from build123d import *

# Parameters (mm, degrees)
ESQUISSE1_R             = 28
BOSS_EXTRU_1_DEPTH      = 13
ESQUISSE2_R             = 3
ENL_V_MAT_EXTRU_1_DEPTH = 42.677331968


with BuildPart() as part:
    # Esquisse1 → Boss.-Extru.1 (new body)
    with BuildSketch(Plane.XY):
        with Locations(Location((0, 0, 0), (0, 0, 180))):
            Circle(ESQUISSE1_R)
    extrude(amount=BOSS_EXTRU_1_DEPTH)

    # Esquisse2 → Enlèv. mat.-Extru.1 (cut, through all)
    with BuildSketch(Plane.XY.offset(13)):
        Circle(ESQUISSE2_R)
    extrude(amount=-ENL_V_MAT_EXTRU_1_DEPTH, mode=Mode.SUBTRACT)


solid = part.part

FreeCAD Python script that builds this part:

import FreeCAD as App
import Part
import Sketcher
Q = App.Units.Quantity

doc = App.newDocument("Part")
body = doc.addObject("PartDesign::Body", "Body")

# Sketch on XY plane
sketch1 = body.newObject("Sketcher::SketchObject", "Sketch")
sketch1.AttachmentSupport = (doc.getObject("XY_Plane"), [""])
sketch1.MapMode = "FlatFace"
sketch1.addGeometry(Part.Circle(App.Vector(0, 0, 0), App.Vector(0, 0, 1), 28), False)
sketch1.addConstraint([
    Sketcher.Constraint("Coincident", 0, 3, -1, 1),
    Sketcher.Constraint("Diameter", 0, Q("56 mm")),
])
pad1 = body.newObject("PartDesign::Pad", "Pad")
pad1.Profile = sketch1
pad1.Length = 13

# Sketch on XY plane
sketch2 = body.newObject("Sketcher::SketchObject", "Sketch001")
sketch2.AttachmentSupport = (doc.getObject("XY_Plane"), [""])
sketch2.MapMode = "FlatFace"
sketch2.AttachmentOffset = App.Placement(App.Vector(0, 0, 13), App.Rotation())
sketch2.addGeometry(Part.Circle(App.Vector(0, 0, 0), App.Vector(0, 0, 1), 3), False)
sketch2.addConstraint([
    Sketcher.Constraint("Coincident", 0, 3, -1, 1),
    Sketcher.Constraint("Diameter", 0, Q("6 mm")),
])
pocket1 = body.newObject("PartDesign::Pocket", "Pocket")
pocket1.Profile = sketch2
pocket1.Type = "ThroughAll"

doc.recompute()
